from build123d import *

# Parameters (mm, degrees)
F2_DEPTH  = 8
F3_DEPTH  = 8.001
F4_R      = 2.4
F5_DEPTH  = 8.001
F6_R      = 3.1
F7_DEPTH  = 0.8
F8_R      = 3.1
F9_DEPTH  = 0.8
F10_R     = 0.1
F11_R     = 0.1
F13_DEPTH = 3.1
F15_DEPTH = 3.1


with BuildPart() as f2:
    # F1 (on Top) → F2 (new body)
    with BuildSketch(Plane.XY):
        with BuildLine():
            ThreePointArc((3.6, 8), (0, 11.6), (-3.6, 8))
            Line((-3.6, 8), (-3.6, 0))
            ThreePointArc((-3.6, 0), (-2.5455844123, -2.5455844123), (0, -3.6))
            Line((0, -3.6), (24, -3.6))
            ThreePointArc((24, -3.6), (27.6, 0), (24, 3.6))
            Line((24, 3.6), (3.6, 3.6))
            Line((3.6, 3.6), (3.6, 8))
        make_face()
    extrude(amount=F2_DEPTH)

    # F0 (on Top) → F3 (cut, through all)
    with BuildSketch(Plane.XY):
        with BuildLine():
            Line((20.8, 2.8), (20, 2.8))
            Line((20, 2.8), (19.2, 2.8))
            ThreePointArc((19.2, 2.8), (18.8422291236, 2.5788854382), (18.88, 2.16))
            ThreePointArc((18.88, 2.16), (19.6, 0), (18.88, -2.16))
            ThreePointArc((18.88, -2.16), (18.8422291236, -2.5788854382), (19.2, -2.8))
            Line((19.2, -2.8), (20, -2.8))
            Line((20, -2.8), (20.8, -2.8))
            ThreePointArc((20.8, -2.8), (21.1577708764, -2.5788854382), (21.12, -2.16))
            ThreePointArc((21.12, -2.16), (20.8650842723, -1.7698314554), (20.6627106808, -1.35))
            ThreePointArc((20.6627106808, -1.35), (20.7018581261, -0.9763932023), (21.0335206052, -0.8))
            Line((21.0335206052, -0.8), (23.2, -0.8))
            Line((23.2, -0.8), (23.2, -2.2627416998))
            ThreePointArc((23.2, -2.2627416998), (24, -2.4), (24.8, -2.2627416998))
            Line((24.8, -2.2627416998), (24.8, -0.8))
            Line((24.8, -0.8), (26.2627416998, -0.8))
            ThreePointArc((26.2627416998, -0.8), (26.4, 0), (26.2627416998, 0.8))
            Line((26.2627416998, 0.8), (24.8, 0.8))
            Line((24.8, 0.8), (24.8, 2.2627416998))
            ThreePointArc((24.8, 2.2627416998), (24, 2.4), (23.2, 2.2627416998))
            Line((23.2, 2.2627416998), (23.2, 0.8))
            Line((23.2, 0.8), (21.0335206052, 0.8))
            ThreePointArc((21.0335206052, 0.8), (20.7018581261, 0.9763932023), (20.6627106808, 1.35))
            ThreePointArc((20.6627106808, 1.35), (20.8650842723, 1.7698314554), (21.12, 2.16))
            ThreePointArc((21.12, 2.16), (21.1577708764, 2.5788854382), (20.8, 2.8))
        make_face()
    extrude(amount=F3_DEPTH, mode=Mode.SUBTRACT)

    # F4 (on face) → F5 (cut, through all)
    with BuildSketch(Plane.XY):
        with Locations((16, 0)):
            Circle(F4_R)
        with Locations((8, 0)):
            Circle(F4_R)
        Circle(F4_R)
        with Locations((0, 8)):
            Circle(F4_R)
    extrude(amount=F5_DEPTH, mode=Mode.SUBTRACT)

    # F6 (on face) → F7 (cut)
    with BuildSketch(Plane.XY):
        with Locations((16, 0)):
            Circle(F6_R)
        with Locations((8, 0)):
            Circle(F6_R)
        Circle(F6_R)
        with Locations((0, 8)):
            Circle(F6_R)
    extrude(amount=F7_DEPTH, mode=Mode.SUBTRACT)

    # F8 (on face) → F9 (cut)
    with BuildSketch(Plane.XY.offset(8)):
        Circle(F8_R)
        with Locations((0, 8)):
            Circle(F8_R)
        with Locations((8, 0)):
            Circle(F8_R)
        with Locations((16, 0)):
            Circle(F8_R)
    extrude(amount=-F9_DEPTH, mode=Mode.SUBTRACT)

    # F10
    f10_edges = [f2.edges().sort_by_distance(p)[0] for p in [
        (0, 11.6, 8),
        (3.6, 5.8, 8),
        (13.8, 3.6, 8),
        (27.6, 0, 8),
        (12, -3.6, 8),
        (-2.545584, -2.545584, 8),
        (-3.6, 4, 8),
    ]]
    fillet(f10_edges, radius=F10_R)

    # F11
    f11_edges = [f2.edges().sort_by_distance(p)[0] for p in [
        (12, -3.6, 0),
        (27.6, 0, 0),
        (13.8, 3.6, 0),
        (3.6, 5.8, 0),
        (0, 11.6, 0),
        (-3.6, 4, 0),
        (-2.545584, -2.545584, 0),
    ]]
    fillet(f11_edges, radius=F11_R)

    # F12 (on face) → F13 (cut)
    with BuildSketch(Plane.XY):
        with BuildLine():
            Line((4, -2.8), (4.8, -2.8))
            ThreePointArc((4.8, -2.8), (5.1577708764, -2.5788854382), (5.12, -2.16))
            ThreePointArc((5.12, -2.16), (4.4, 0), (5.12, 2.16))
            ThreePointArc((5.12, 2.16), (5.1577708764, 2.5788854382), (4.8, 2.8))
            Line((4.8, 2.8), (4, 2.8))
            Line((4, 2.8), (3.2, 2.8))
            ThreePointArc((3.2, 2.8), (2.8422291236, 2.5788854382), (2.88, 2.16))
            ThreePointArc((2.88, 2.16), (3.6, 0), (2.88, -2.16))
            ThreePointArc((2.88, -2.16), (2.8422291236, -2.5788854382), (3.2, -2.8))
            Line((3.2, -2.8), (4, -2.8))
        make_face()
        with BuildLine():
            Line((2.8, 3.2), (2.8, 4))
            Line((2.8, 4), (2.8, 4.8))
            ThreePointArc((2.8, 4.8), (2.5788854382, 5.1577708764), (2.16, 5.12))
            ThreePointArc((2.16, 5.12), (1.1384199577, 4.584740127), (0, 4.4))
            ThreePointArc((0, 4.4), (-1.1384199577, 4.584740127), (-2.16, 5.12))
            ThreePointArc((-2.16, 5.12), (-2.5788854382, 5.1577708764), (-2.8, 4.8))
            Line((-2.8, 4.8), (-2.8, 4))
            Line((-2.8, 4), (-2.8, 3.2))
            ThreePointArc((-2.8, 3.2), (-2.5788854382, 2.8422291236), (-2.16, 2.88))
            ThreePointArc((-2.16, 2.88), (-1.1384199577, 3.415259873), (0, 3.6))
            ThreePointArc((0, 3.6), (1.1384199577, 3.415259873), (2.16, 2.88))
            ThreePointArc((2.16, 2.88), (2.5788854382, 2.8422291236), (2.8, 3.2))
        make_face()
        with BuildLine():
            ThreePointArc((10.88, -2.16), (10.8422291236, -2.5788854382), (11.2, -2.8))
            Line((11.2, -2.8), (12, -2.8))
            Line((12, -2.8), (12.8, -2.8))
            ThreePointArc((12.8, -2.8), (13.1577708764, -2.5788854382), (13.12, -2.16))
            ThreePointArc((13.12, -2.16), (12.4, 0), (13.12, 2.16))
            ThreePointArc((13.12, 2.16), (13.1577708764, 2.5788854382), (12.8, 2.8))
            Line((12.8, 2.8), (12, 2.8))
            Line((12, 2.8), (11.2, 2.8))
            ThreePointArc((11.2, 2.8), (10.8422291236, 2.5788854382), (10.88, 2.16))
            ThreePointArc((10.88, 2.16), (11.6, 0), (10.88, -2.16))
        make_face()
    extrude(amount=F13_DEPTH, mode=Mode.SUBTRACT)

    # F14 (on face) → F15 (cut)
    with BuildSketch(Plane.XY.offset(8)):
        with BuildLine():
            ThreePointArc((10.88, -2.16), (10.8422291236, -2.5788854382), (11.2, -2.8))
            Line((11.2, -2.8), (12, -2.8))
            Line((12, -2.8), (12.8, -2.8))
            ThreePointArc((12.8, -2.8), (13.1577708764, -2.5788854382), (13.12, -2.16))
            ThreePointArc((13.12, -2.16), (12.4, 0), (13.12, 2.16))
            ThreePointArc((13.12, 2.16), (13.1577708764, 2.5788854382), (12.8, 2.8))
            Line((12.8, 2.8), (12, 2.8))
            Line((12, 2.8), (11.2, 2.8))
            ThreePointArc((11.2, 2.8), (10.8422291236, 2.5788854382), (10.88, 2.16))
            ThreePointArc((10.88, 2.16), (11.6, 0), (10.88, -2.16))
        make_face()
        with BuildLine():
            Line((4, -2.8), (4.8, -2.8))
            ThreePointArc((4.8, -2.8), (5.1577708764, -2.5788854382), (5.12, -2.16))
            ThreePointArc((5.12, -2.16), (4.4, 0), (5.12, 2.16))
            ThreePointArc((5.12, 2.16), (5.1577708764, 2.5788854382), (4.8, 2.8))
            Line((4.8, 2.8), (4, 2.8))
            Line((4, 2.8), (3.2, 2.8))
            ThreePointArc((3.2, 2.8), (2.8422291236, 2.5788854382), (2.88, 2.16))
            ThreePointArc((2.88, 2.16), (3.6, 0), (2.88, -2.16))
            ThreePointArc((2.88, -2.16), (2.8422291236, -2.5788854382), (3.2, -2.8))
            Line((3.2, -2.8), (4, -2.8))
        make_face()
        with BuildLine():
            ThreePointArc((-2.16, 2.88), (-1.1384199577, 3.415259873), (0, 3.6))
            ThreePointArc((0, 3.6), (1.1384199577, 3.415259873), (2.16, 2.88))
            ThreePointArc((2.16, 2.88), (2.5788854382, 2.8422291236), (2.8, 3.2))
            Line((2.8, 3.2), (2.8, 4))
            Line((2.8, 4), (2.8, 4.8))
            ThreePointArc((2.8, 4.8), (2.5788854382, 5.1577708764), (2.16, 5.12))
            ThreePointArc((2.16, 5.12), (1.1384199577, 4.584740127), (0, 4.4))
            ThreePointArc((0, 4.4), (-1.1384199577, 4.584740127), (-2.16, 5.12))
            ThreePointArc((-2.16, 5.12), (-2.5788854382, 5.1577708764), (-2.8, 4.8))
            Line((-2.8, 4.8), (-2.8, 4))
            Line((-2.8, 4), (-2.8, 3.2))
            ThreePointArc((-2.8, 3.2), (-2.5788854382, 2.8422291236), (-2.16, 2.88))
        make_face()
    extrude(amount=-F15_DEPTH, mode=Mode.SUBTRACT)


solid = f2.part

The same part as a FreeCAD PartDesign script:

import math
import FreeCAD as App
import Part
import Sketcher

V = App.Vector


def edges_at(feature, points):
    """Names of the edges that pass closest to the given points."""
    edges = feature.Shape.Edges
    near = lambda p: min(range(len(edges)), key=lambda i: edges[i].distToShape(Part.Vertex(*p))[0])
    return sorted({f"Edge{near(p) + 1}" for p in points})

doc = App.newDocument("Part")
params = doc.addObject("Spreadsheet::Sheet", "Params")
for row, (alias, value) in enumerate([
    ("sketch1_radius", "3.6 mm"),
    ("sketch1_width", "24 mm"),
    ("sketch1_height", "8 mm"),
    ("pad1_length", "8 mm"),
    ("sketch2_radius", "0.4 mm"),
    ("sketch2_radius2", "3.6 mm"),
    ("sketch2_radius3", "2.4 mm"),
    ("sketch2_width", "1.6 mm"),
    ("sketch3_diameter", "4.8 mm"),
    ("sketch4_diameter", "6.2 mm"),
    ("pocket3_length", "0.8 mm"),
    ("sketch5_diameter", "6.2 mm"),
    ("pocket4_length", "0.8 mm"),
    ("fillet_radius", "0.1 mm"),
    ("fillet2_radius", "0.1 mm"),
    ("sketch6_radius", "0.4 mm"),
    ("sketch6_radius2", "3.6 mm"),
    ("sketch6_width", "1.6 mm"),
    ("pocket5_length", "3.1 mm"),
    ("sketch7_radius", "0.4 mm"),
    ("sketch7_radius2", "3.6 mm"),
    ("sketch7_width", "1.6 mm"),
    ("pocket6_length", "3.1 mm"),
], start=1):
    params.set(f"A{row}", alias)
    params.set(f"B{row}", "=" + value)
    params.setAlias(f"B{row}", alias)

body = doc.addObject("PartDesign::Body", "Body")

sketch1 = body.newObject("Sketcher::SketchObject", "Sketch")
sketch1.AttachmentSupport = (doc.getObject("XY_Plane"), [""])
sketch1.MapMode = "FlatFace"
sketch1.addGeometry([
    Part.ArcOfCircle(Part.Circle(V(0, 8, 0), V(0, 0, 1), 3.6), math.radians(0), math.radians(180)),
    Part.LineSegment(V(-3.6, 8, 0), V(-3.6, 0, 0)),
    Part.ArcOfCircle(Part.Circle(V(0, 0, 0), V(0, 0, 1), 3.6), math.radians(180), math.radians(270)),
    Part.LineSegment(V(0, -3.6, 0), V(24, -3.6, 0)),
    Part.ArcOfCircle(Part.Circle(V(24, 0, 0), V(0, 0, 1), 3.6), math.radians(-90), math.radians(90)),
    Part.LineSegment(V(24, 3.6, 0), V(3.6, 3.6, 0)),
    Part.LineSegment(V(3.6, 3.6, 0), V(3.6, 8, 0)),
], False)
sketch1.addConstraint([
    Sketcher.Constraint("Tangent", 0, 2, 1, 1),
    Sketcher.Constraint("Tangent", 1, 2, 2, 1),
    Sketcher.Constraint("Tangent", 2, 2, 3, 1),
    Sketcher.Constraint("Tangent", 3, 2, 4, 1),
    Sketcher.Constraint("Tangent", 4, 2, 5, 1),
    Sketcher.Constraint("Coincident", 5, 2, 6, 1),
    Sketcher.Constraint("Tangent", 6, 2, 0, 1),
    Sketcher.Constraint("Vertical", 1),
    Sketcher.Constraint("Horizontal", 3),
    Sketcher.Constraint("Horizontal", 5),
    Sketcher.Constraint("Vertical", 6),
    Sketcher.Constraint("Coincident", 2, 3, -1, 1),
    Sketcher.Constraint("Equal", 0, 2),
    Sketcher.Constraint("Equal", 2, 4),
    Sketcher.Constraint("Radius", 0, 3.6),
    Sketcher.Constraint("DistanceX", 3, 1, 3, 2, 24.0),
    Sketcher.Constraint("DistanceY", 1, 2, 1, 1, 8.0),
])
sketch1.setExpression("Constraints[14]", "Params.sketch1_radius")
sketch1.setExpression("Constraints[15]", "Params.sketch1_width")
sketch1.setExpression("Constraints[16]", "Params.sketch1_height")
pad1 = body.newObject("PartDesign::Pad", "Pad")
pad1.Profile = sketch1
pad1.setExpression("Length", "Params.pad1_length")

sketch2 = body.newObject("Sketcher::SketchObject", "Sketch001")
sketch2.AttachmentSupport = (doc.getObject("XY_Plane"), [""])
sketch2.MapMode = "FlatFace"
sketch2.addGeometry([
    Part.LineSegment(V(20.8, 2.8, 0), V(19.2, 2.8, 0)),
    Part.ArcOfCircle(Part.Circle(V(19.2, 2.4, 0), V(0, 0, 1), 0.4), math.radians(90), math.radians(217)),
    Part.ArcOfCircle(Part.Circle(V(16, 0, 0), V(0, 0, 1), 3.6), math.radians(-37), math.radians(37)),
    Part.ArcOfCircle(Part.Circle(V(19.2, -2.4, 0), V(0, 0, 1), 0.4), math.radians(143), math.radians(270)),
    Part.LineSegment(V(19.2, -2.8, 0), V(20.8, -2.8, 0)),
    Part.ArcOfCircle(Part.Circle(V(20.8, -2.4, 0), V(0, 0, 1), 0.4), math.radians(-90), math.radians(37)),
    Part.ArcOfCircle(Part.Circle(V(24, 0, 0), V(0, 0, 1), 3.6), math.radians(-157.98), math.radians(-143.13)),
    Part.ArcOfCircle(Part.Circle(V(21.03, -1.2, 0), V(0, 0, 1), 0.4), math.radians(90), math.radians(202)),
    Part.LineSegment(V(21.03, -0.8, 0), V(23.2, -0.8, 0)),
    Part.LineSegment(V(23.2, -0.8, 0), V(23.2, -2.26, 0)),
    Part.ArcOfCircle(Part.Circle(V(24, 0, 0), V(0, 0, 1), 2.4), math.radians(-109), math.radians(-71)),
    Part.LineSegment(V(24.8, -2.26, 0), V(24.8, -0.8, 0)),
    Part.LineSegment(V(24.8, -0.8, 0), V(26.26, -0.8, 0)),
    Part.ArcOfCircle(Part.Circle(V(24, 0, 0), V(0, 0, 1), 2.4), math.radians(-19), math.radians(19)),
    Part.LineSegment(V(26.26, 0.8, 0), V(24.8, 0.8, 0)),
    Part.LineSegment(V(24.8, 0.8, 0), V(24.8, 2.26, 0)),
    Part.ArcOfCircle(Part.Circle(V(24, 0, 0), V(0, 0, 1), 2.4), math.radians(71), math.radians(109)),
    Part.LineSegment(V(23.2, 2.26, 0), V(23.2, 0.8, 0)),
    Part.LineSegment(V(23.2, 0.8, 0), V(21.03, 0.8, 0)),
    Part.ArcOfCircle(Part.Circle(V(21.03, 1.2, 0), V(0, 0, 1), 0.4), math.radians(158), math.radians(270)),
    Part.ArcOfCircle(Part.Circle(V(24, 0, 0), V(0, 0, 1), 3.6), math.radians(143.13), math.radians(157.98)),
    Part.ArcOfCircle(Part.Circle(V(20.8, 2.4, 0), V(0, 0, 1), 0.4), math.radians(-37), math.radians(90)),
], False)
sketch2.addConstraint([
    Sketcher.Constraint("Tangent", 0, 2, 1, 1),
    Sketcher.Constraint("Tangent", 1, 2, 2, 2),
    Sketcher.Constraint("Tangent", 2, 1, 3, 1),
    Sketcher.Constraint("Tangent", 3, 2, 4, 1),
    Sketcher.Constraint("Tangent", 4, 2, 5, 1),
    Sketcher.Constraint("Tangent", 5, 2, 6, 2),
    Sketcher.Constraint("Tangent", 6, 1, 7, 2),
    Sketcher.Constraint("Tangent", 7, 1, 8, 1),
    Sketcher.Constraint("Coincident", 8, 2, 9, 1),
    Sketcher.Constraint("Coincident", 9, 2, 10, 1),
    Sketcher.Constraint("Coincident", 10, 2, 11, 1),
    Sketcher.Constraint("Coincident", 11, 2, 12, 1),
    Sketcher.Constraint("Coincident", 12, 2, 13, 1),
    Sketcher.Constraint("Coincident", 13, 2, 14, 1),
    Sketcher.Constraint("Coincident", 14, 2, 15, 1),
    Sketcher.Constraint("Coincident", 15, 2, 16, 1),
    Sketcher.Constraint("Coincident", 16, 2, 17, 1),
    Sketcher.Constraint("Coincident", 17, 2, 18, 1),
    Sketcher.Constraint("Tangent", 18, 2, 19, 2),
    Sketcher.Constraint("Tangent", 19, 1, 20, 2),
    Sketcher.Constraint("Tangent", 20, 1, 21, 1),
    Sketcher.Constraint("Tangent", 21, 2, 0, 1),
    Sketcher.Constraint("Horizontal", 0),
    Sketcher.Constraint("Horizontal", 4),
    Sketcher.Constraint("Horizontal", 8),
    Sketcher.Constraint("Vertical", 9),
    Sketcher.Constraint("Vertical", 11),
    Sketcher.Constraint("Horizontal", 12),
    Sketcher.Constraint("Horizontal", 14),
    Sketcher.Constraint("Vertical", 15),
    Sketcher.Constraint("Vertical", 17),
    Sketcher.Constraint("Horizontal", 18),
    Sketcher.Constraint("Coincident", 10, 3, 6, 3),
    Sketcher.Constraint("Coincident", 13, 3, 6, 3),
    Sketcher.Constraint("Coincident", 16, 3, 6, 3),
    Sketcher.Constraint("Coincident", 20, 3, 6, 3),
    Sketcher.Constraint("Equal", 1, 3),
    Sketcher.Constraint("Equal", 3, 5),
    Sketcher.Constraint("Equal", 2, 6),
    Sketcher.Constraint("Equal", 5, 7),
    Sketcher.Constraint("Equal", 10, 13),
    Sketcher.Constraint("Equal", 13, 16),
    Sketcher.Constraint("Equal", 7, 19),
    Sketcher.Constraint("Equal", 6, 20),
    Sketcher.Constraint("Equal", 19, 21),
    Sketcher.Constraint("Symmetric", 1, 3, 3, 3, -1),
    Sketcher.Constraint("Symmetric", 7, 3, 19, 3, -1),
    Sketcher.Constraint("Symmetric", 11, 2, 14, 2, -1),
    Sketcher.Constraint("Horizontal", 9, 2, 10, 2),
    Sketcher.Constraint("Horizontal", 8, 2, 11, 2),
    Sketcher.Constraint("Horizontal", 15, 2, 16, 2),
    Sketcher.Constraint("Equal", 14, 9),
    Sketcher.Constraint("Radius", 1, 0.4),
    Sketcher.Constraint("Radius", 2, 3.6),
    Sketcher.Constraint("Radius", 10, 2.4),
    Sketcher.Constraint("DistanceX", 0, 2, 0, 1, 1.6),
    Sketcher.Constraint("DistanceX", -1, 1, 2, 3, 16.0),
    Sketcher.Constraint("DistanceX", -1, 1, 6, 3, 24.0),
    Sketcher.Constraint("DistanceY", 7, 3, 0, 2, 4.0),
])
sketch2.setExpression("Constraints[52]", "Params.sketch2_radius")
sketch2.setExpression("Constraints[53]", "Params.sketch2_radius2")
sketch2.setExpression("Constraints[54]", "Params.sketch2_radius3")
sketch2.setExpression("Constraints[55]", "Params.sketch2_width")
pocket1 = body.newObject("PartDesign::Pocket", "Pocket")
pocket1.Profile = sketch2
pocket1.Type = "ThroughAll"
pocket1.Reversed = True

sketch3 = body.newObject("Sketcher::SketchObject", "Sketch002")
sketch3.AttachmentSupport = (doc.getObject("XY_Plane"), [""])
sketch3.MapMode = "FlatFace"
sketch3.addGeometry([
    Part.Circle(V(16, 0, 0), V(0, 0, 1), 2.4),
    Part.Circle(V(8, 0, 0), V(0, 0, 1), 2.4),
    Part.Circle(V(0, 0, 0), V(0, 0, 1), 2.4),
    Part.Circle(V(0, 8, 0), V(0, 0, 1), 2.4),
], False)
sketch3.addConstraint([
    Sketcher.Constraint("Coincident", 2, 3, -1, 1),
    Sketcher.Constraint("Equal", 0, 1),
    Sketcher.Constraint("Equal", 1, 2),
    Sketcher.Constraint("Equal", 2, 3),
    Sketcher.Constraint("PointOnObject", 0, 3, -1),
    Sketcher.Constraint("PointOnObject", 1, 3, -1),
    Sketcher.Constraint("PointOnObject", 3, 3, -2),
    Sketcher.Constraint("Diameter", 0, 4.8),
    Sketcher.Constraint("DistanceX", -1, 1, 0, 3, 16.0),
    Sketcher.Constraint("DistanceX", -1, 1, 1, 3, 8.0),
    Sketcher.Constraint("DistanceY", -1, 1, 3, 3, 8.0),
])
sketch3.setExpression("Constraints[7]", "Params.sketch3_diameter")
pocket2 = body.newObject("PartDesign::Pocket", "Pocket001")
pocket2.Profile = sketch3
pocket2.Type = "ThroughAll"
pocket2.Reversed = True

sketch4 = body.newObject("Sketcher::SketchObject", "Sketch003")
sketch4.AttachmentSupport = (doc.getObject("XY_Plane"), [""])
sketch4.MapMode = "FlatFace"
sketch4.addGeometry([
    Part.Circle(V(16, 0, 0), V(0, 0, 1), 3.1),
    Part.Circle(V(8, 0, 0), V(0, 0, 1), 3.1),
    Part.Circle(V(0, 0, 0), V(0, 0, 1), 3.1),
    Part.Circle(V(0, 8, 0), V(0, 0, 1), 3.1),
], False)
sketch4.addConstraint([
    Sketcher.Constraint("Coincident", 2, 3, -1, 1),
    Sketcher.Constraint("Equal", 0, 1),
    Sketcher.Constraint("Equal", 1, 2),
    Sketcher.Constraint("Equal", 2, 3),
    Sketcher.Constraint("PointOnObject", 0, 3, -1),
    Sketcher.Constraint("PointOnObject", 1, 3, -1),
    Sketcher.Constraint("PointOnObject", 3, 3, -2),
    Sketcher.Constraint("Diameter", 0, 6.2),
    Sketcher.Constraint("DistanceX", -1, 1, 0, 3, 16.0),
    Sketcher.Constraint("DistanceX", -1, 1, 1, 3, 8.0),
    Sketcher.Constraint("DistanceY", -1, 1, 3, 3, 8.0),
])
sketch4.setExpression("Constraints[7]", "Params.sketch4_diameter")
pocket3 = body.newObject("PartDesign::Pocket", "Pocket002")
pocket3.Profile = sketch4
pocket3.setExpression("Length", "Params.pocket3_length")
pocket3.Reversed = True

sketch5 = body.newObject("Sketcher::SketchObject", "Sketch004")
sketch5.AttachmentSupport = (doc.getObject("XY_Plane"), [""])
sketch5.MapMode = "FlatFace"
sketch5.AttachmentOffset = App.Placement(V(0, 0, 8), App.Rotation())
sketch5.addGeometry([
    Part.Circle(V(0, 0, 0), V(0, 0, 1), 3.1),
    Part.Circle(V(0, 8, 0), V(0, 0, 1), 3.1),
    Part.Circle(V(8, 0, 0), V(0, 0, 1), 3.1),
    Part.Circle(V(16, 0, 0), V(0, 0, 1), 3.1),
], False)
sketch5.addConstraint([
    Sketcher.Constraint("Coincident", 0, 3, -1, 1),
    Sketcher.Constraint("Equal", 0, 1),
    Sketcher.Constraint("Equal", 1, 2),
    Sketcher.Constraint("Equal", 2, 3),
    Sketcher.Constraint("PointOnObject", 1, 3, -2),
    Sketcher.Constraint("PointOnObject", 2, 3, -1),
    Sketcher.Constraint("PointOnObject", 3, 3, -1),
    Sketcher.Constraint("Diameter", 0, 6.2),
    Sketcher.Constraint("DistanceY", -1, 1, 1, 3, 8.0),
    Sketcher.Constraint("DistanceX", -1, 1, 2, 3, 8.0),
    Sketcher.Constraint("DistanceX", -1, 1, 3, 3, 16.0),
])
sketch5.setExpression("Constraints[7]", "Params.sketch5_diameter")
pocket4 = body.newObject("PartDesign::Pocket", "Pocket003")
pocket4.Profile = sketch5
pocket4.setExpression("Length", "Params.pocket4_length")
doc.recompute()

fillet = body.newObject("PartDesign::Fillet", "Fillet")
fillet.Base = (pocket4, edges_at(pocket4, [
    (0, 11.6, 8),
    (3.6, 5.8, 8),
    (13.8, 3.6, 8),
    (27.6, 0, 8),
    (12, -3.6, 8),
    (-2.546, -2.546, 8),
    (-3.6, 4, 8),
]))
fillet.setExpression("Radius", "Params.fillet_radius")
doc.recompute()

fillet2 = body.newObject("PartDesign::Fillet", "Fillet001")
fillet2.Base = (fillet, edges_at(fillet, [
    (12, -3.6, 0),
    (27.6, 0, 0),
    (13.8, 3.6, 0),
    (3.6, 5.8, 0),
    (0, 11.6, 0),
    (-3.6, 4, 0),
    (-2.546, -2.546, 0),
]))
fillet2.setExpression("Radius", "Params.fillet2_radius")

sketch6 = body.newObject("Sketcher::SketchObject", "Sketch005")
sketch6.AttachmentSupport = (doc.getObject("XY_Plane"), [""])
sketch6.MapMode = "FlatFace"
sketch6.addGeometry([
    Part.ArcOfCircle(Part.Circle(V(4.8, -2.4, 0), V(0, 0, 1), 0.4), math.radians(-90), math.radians(37)),
    Part.ArcOfCircle(Part.Circle(V(8, 0, 0), V(0, 0, 1), 3.6), math.radians(143), math.radians(217)),
    Part.ArcOfCircle(Part.Circle(V(4.8, 2.4, 0), V(0, 0, 1), 0.4), math.radians(-37), math.radians(90)),
    Part.LineSegment(V(4.8, 2.8, 0), V(3.2, 2.8, 0)),
    Part.ArcOfCircle(Part.Circle(V(3.2, 2.4, 0), V(0, 0, 1), 0.4), math.radians(90), math.radians(217)),
    Part.ArcOfCircle(Part.Circle(V(0, 0, 0), V(0, 0, 1), 3.6), math.radians(-37), math.radians(37)),
    Part.ArcOfCircle(Part.Circle(V(3.2, -2.4, 0), V(0, 0, 1), 0.4), math.radians(143), math.radians(270)),
    Part.LineSegment(V(3.2, -2.8, 0), V(4.8, -2.8, 0)),
    Part.LineSegment(V(2.8, 3.2, 0), V(2.8, 4.8, 0)),
    Part.ArcOfCircle(Part.Circle(V(2.4, 4.8, 0), V(0, 0, 1), 0.4), math.radians(0), math.radians(127)),
    Part.ArcOfCircle(Part.Circle(V(0, 8, 0), V(0, 0, 1), 3.6), math.radians(-90), math.radians(-53)),
    Part.ArcOfCircle(Part.Circle(V(0, 8, 0), V(0, 0, 1), 3.6), math.radians(-127), math.radians(-90)),
    Part.ArcOfCircle(Part.Circle(V(-2.4, 4.8, 0), V(0, 0, 1), 0.4), math.radians(53), math.radians(180)),
    Part.LineSegment(V(-2.8, 4.8, 0), V(-2.8, 3.2, 0)),
    Part.ArcOfCircle(Part.Circle(V(-2.4, 3.2, 0), V(0, 0, 1), 0.4), math.radians(180), math.radians(307)),
    Part.ArcOfCircle(Part.Circle(V(0, 0, 0), V(0, 0, 1), 3.6), math.radians(90), math.radians(127)),
    Part.ArcOfCircle(Part.Circle(V(0, 0, 0), V(0, 0, 1), 3.6), math.radians(53), math.radians(90)),
    Part.ArcOfCircle(Part.Circle(V(2.4, 3.2, 0), V(0, 0, 1), 0.4), math.radians(-127), math.radians(0)),
    Part.ArcOfCircle(Part.Circle(V(11.2, -2.4, 0), V(0, 0, 1), 0.4), math.radians(143), math.radians(270)),
    Part.LineSegment(V(11.2, -2.8, 0), V(12.8, -2.8, 0)),
    Part.ArcOfCircle(Part.Circle(V(12.8, -2.4, 0), V(0, 0, 1), 0.4), math.radians(-90), math.radians(37)),
    Part.ArcOfCircle(Part.Circle(V(16, 0, 0), V(0, 0, 1), 3.6), math.radians(143), math.radians(217)),
    Part.ArcOfCircle(Part.Circle(V(12.8, 2.4, 0), V(0, 0, 1), 0.4), math.radians(-37), math.radians(90)),
    Part.LineSegment(V(12.8, 2.8, 0), V(11.2, 2.8, 0)),
    Part.ArcOfCircle(Part.Circle(V(11.2, 2.4, 0), V(0, 0, 1), 0.4), math.radians(90), math.radians(217)),
    Part.ArcOfCircle(Part.Circle(V(8, 0, 0), V(0, 0, 1), 3.6), math.radians(-37), math.radians(37)),
], False)
sketch6.addConstraint([
    Sketcher.Constraint("Tangent", 0, 2, 1, 2),
    Sketcher.Constraint("Tangent", 1, 1, 2, 1),
    Sketcher.Constraint("Tangent", 2, 2, 3, 1),
    Sketcher.Constraint("Tangent", 3, 2, 4, 1),
    Sketcher.Constraint("Tangent", 4, 2, 5, 2),
    Sketcher.Constraint("Tangent", 5, 1, 6, 1),
    Sketcher.Constraint("Tangent", 6, 2, 7, 1),
    Sketcher.Constraint("Tangent", 7, 2, 0, 1),
    Sketcher.Constraint("Tangent", 8, 2, 9, 1),
    Sketcher.Constraint("Tangent", 9, 2, 10, 2),
    Sketcher.Constraint("Tangent", 10, 1, 11, 2),
    Sketcher.Constraint("Tangent", 11, 1, 12, 1),
    Sketcher.Constraint("Tangent", 12, 2, 13, 1),
    Sketcher.Constraint("Tangent", 13, 2, 14, 1),
    Sketcher.Constraint("Tangent", 14, 2, 15, 2),
    Sketcher.Constraint("Tangent", 15, 1, 16, 2),
    Sketcher.Constraint("Tangent", 16, 1, 17, 1),
    Sketcher.Constraint("Tangent", 17, 2, 8, 1),
    Sketcher.Constraint("Tangent", 18, 2, 19, 1),
    Sketcher.Constraint("Tangent", 19, 2, 20, 1),
    Sketcher.Constraint("Tangent", 20, 2, 21, 2),
    Sketcher.Constraint("Tangent", 21, 1, 22, 1),
    Sketcher.Constraint("Tangent", 22, 2, 23, 1),
    Sketcher.Constraint("Tangent", 23, 2, 24, 1),
    Sketcher.Constraint("Tangent", 24, 2, 25, 2),
    Sketcher.Constraint("Tangent", 25, 1, 18, 1),
    Sketcher.Constraint("Horizontal", 3),
    Sketcher.Constraint("Horizontal", 7),
    Sketcher.Constraint("Vertical", 8),
    Sketcher.Constraint("Vertical", 13),
    Sketcher.Constraint("Horizontal", 19),
    Sketcher.Constraint("Horizontal", 23),
    Sketcher.Constraint("Coincident", 5, 3, -1, 1),
    Sketcher.Constraint("Coincident", 15, 3, -1, 1),
    Sketcher.Constraint("Coincident", 25, 3, 1, 3),
    Sketcher.Constraint("Equal", 0, 2),
    Sketcher.Constraint("Equal", 2, 4),
    Sketcher.Constraint("Equal", 1, 5),
    Sketcher.Constraint("Equal", 4, 6),
    Sketcher.Constraint("Equal", 6, 9),
    Sketcher.Constraint("Equal", 5, 10),
    Sketcher.Constraint("Equal", 10, 11),
    Sketcher.Constraint("Equal", 9, 12),
    Sketcher.Constraint("Equal", 12, 14),
    Sketcher.Constraint("Equal", 11, 15),
    Sketcher.Constraint("Equal", 15, 16),
    Sketcher.Constraint("Equal", 14, 17),
    Sketcher.Constraint("Equal", 17, 18),
    Sketcher.Constraint("Equal", 18, 20),
    Sketcher.Constraint("Equal", 16, 21),
    Sketcher.Constraint("Equal", 20, 22),
    Sketcher.Constraint("Equal", 22, 24),
    Sketcher.Constraint("Equal", 21, 25),
    Sketcher.Constraint("Symmetric", 9, 3, 12, 3, -2),
    Sketcher.Constraint("Symmetric", 0, 3, 2, 3, -1),
    Sketcher.Constraint("Symmetric", 20, 3, 22, 3, -1),
    Sketcher.Constraint("PointOnObject", 10, 1, -2),
    Sketcher.Constraint("PointOnObject", 15, 1, -2),
    Sketcher.Constraint("Horizontal", 6, 3, 18, 3),
    Sketcher.Constraint("Equal", 7, 19),
    Sketcher.Constraint("Equal", 23, 8),
    Sketcher.Constraint("Radius", 0, 0.4),
    Sketcher.Constraint("Radius", 1, 3.6),
    Sketcher.Constraint("DistanceX", 3, 2, 3, 1, 1.6),
    Sketcher.Constraint("DistanceX", -1, 1, 1, 3, 8.0),
    Sketcher.Constraint("DistanceY", -1, 1, 10, 3, 8.0),
])
sketch6.setExpression("Constraints[61]", "Params.sketch6_radius")
sketch6.setExpression("Constraints[62]", "Params.sketch6_radius2")
sketch6.setExpression("Constraints[63]", "Params.sketch6_width")
pocket5 = body.newObject("PartDesign::Pocket", "Pocket004")
pocket5.Profile = sketch6
pocket5.setExpression("Length", "Params.pocket5_length")
pocket5.Reversed = True

sketch7 = body.newObject("Sketcher::SketchObject", "Sketch006")
sketch7.AttachmentSupport = (doc.getObject("XY_Plane"), [""])
sketch7.MapMode = "FlatFace"
sketch7.AttachmentOffset = App.Placement(V(0, 0, 8), App.Rotation())
sketch7.addGeometry([
    Part.ArcOfCircle(Part.Circle(V(11.2, -2.4, 0), V(0, 0, 1), 0.4), math.radians(143), math.radians(270)),
    Part.LineSegment(V(11.2, -2.8, 0), V(12.8, -2.8, 0)),
    Part.ArcOfCircle(Part.Circle(V(12.8, -2.4, 0), V(0, 0, 1), 0.4), math.radians(-90), math.radians(37)),
    Part.ArcOfCircle(Part.Circle(V(16, 0, 0), V(0, 0, 1), 3.6), math.radians(143), math.radians(217)),
    Part.ArcOfCircle(Part.Circle(V(12.8, 2.4, 0), V(0, 0, 1), 0.4), math.radians(-37), math.radians(90)),
    Part.LineSegment(V(12.8, 2.8, 0), V(11.2, 2.8, 0)),
    Part.ArcOfCircle(Part.Circle(V(11.2, 2.4, 0), V(0, 0, 1), 0.4), math.radians(90), math.radians(217)),
    Part.ArcOfCircle(Part.Circle(V(8, 0, 0), V(0, 0, 1), 3.6), math.radians(-37), math.radians(37)),
    Part.ArcOfCircle(Part.Circle(V(4.8, -2.4, 0), V(0, 0, 1), 0.4), math.radians(-90), math.radians(37)),
    Part.ArcOfCircle(Part.Circle(V(8, 0, 0), V(0, 0, 1), 3.6), math.radians(143), math.radians(217)),
    Part.ArcOfCircle(Part.Circle(V(4.8, 2.4, 0), V(0, 0, 1), 0.4), math.radians(-37), math.radians(90)),
    Part.LineSegment(V(4.8, 2.8, 0), V(3.2, 2.8, 0)),
    Part.ArcOfCircle(Part.Circle(V(3.2, 2.4, 0), V(0, 0, 1), 0.4), math.radians(90), math.radians(217)),
    Part.ArcOfCircle(Part.Circle(V(0, 0, 0), V(0, 0, 1), 3.6), math.radians(-37), math.radians(37)),
    Part.ArcOfCircle(Part.Circle(V(3.2, -2.4, 0), V(0, 0, 1), 0.4), math.radians(143), math.radians(270)),
    Part.LineSegment(V(3.2, -2.8, 0), V(4.8, -2.8, 0)),
    Part.ArcOfCircle(Part.Circle(V(0, 0, 0), V(0, 0, 1), 3.6), math.radians(90), math.radians(127)),
    Part.ArcOfCircle(Part.Circle(V(0, 0, 0), V(0, 0, 1), 3.6), math.radians(53), math.radians(90)),
    Part.ArcOfCircle(Part.Circle(V(2.4, 3.2, 0), V(0, 0, 1), 0.4), math.radians(-127), math.radians(0)),
    Part.LineSegment(V(2.8, 3.2, 0), V(2.8, 4.8, 0)),
    Part.ArcOfCircle(Part.Circle(V(2.4, 4.8, 0), V(0, 0, 1), 0.4), math.radians(0), math.radians(127)),
    Part.ArcOfCircle(Part.Circle(V(0, 8, 0), V(0, 0, 1), 3.6), math.radians(-90), math.radians(-53)),
    Part.ArcOfCircle(Part.Circle(V(0, 8, 0), V(0, 0, 1), 3.6), math.radians(-127), math.radians(-90)),
    Part.ArcOfCircle(Part.Circle(V(-2.4, 4.8, 0), V(0, 0, 1), 0.4), math.radians(53), math.radians(180)),
    Part.LineSegment(V(-2.8, 4.8, 0), V(-2.8, 3.2, 0)),
    Part.ArcOfCircle(Part.Circle(V(-2.4, 3.2, 0), V(0, 0, 1), 0.4), math.radians(180), math.radians(307)),
], False)
sketch7.addConstraint([
    Sketcher.Constraint("Tangent", 0, 2, 1, 1),
    Sketcher.Constraint("Tangent", 1, 2, 2, 1),
    Sketcher.Constraint("Tangent", 2, 2, 3, 2),
    Sketcher.Constraint("Tangent", 3, 1, 4, 1),
    Sketcher.Constraint("Tangent", 4, 2, 5, 1),
    Sketcher.Constraint("Tangent", 5, 2, 6, 1),
    Sketcher.Constraint("Tangent", 6, 2, 7, 2),
    Sketcher.Constraint("Tangent", 7, 1, 0, 1),
    Sketcher.Constraint("Tangent", 8, 2, 9, 2),
    Sketcher.Constraint("Tangent", 9, 1, 10, 1),
    Sketcher.Constraint("Tangent", 10, 2, 11, 1),
    Sketcher.Constraint("Tangent", 11, 2, 12, 1),
    Sketcher.Constraint("Tangent", 12, 2, 13, 2),
    Sketcher.Constraint("Tangent", 13, 1, 14, 1),
    Sketcher.Constraint("Tangent", 14, 2, 15, 1),
    Sketcher.Constraint("Tangent", 15, 2, 8, 1),
    Sketcher.Constraint("Tangent", 16, 1, 17, 2),
    Sketcher.Constraint("Tangent", 17, 1, 18, 1),
    Sketcher.Constraint("Tangent", 18, 2, 19, 1),
    Sketcher.Constraint("Tangent", 19, 2, 20, 1),
    Sketcher.Constraint("Tangent", 20, 2, 21, 2),
    Sketcher.Constraint("Tangent", 21, 1, 22, 2),
    Sketcher.Constraint("Tangent", 22, 1, 23, 1),
    Sketcher.Constraint("Tangent", 23, 2, 24, 1),
    Sketcher.Constraint("Tangent", 24, 2, 25, 1),
    Sketcher.Constraint("Tangent", 25, 2, 16, 2),
    Sketcher.Constraint("Horizontal", 1),
    Sketcher.Constraint("Horizontal", 5),
    Sketcher.Constraint("Horizontal", 11),
    Sketcher.Constraint("Horizontal", 15),
    Sketcher.Constraint("Vertical", 19),
    Sketcher.Constraint("Vertical", 24),
    Sketcher.Constraint("Coincident", 13, 3, -1, 1),
    Sketcher.Constraint("Coincident", 16, 3, -1, 1),
    Sketcher.Constraint("Coincident", 9, 3, 7, 3),
    Sketcher.Constraint("Equal", 0, 2),
    Sketcher.Constraint("Equal", 2, 4),
    Sketcher.Constraint("Equal", 4, 6),
    Sketcher.Constraint("Equal", 3, 7),
    Sketcher.Constraint("Equal", 6, 8),
    Sketcher.Constraint("Equal", 7, 9),
    Sketcher.Constraint("Equal", 8, 10),
    Sketcher.Constraint("Equal", 10, 12),
    Sketcher.Constraint("Equal", 9, 13),
    Sketcher.Constraint("Equal", 12, 14),
    Sketcher.Constraint("Equal", 13, 16),
    Sketcher.Constraint("Equal", 16, 17),
    Sketcher.Constraint("Equal", 14, 18),
    Sketcher.Constraint("Equal", 18, 20),
    Sketcher.Constraint("Equal", 17, 21),
    Sketcher.Constraint("Equal", 21, 22),
    Sketcher.Constraint("Equal", 20, 23),
    Sketcher.Constraint("Equal", 23, 25),
    Sketcher.Constraint("Symmetric", 20, 3, 23, 3, -2),
    Sketcher.Constraint("Symmetric", 2, 3, 4, 3, -1),
    Sketcher.Constraint("Symmetric", 8, 3, 10, 3, -1),
    Sketcher.Constraint("PointOnObject", 16, 1, -2),
    Sketcher.Constraint("PointOnObject", 21, 1, -2),
    Sketcher.Constraint("Horizontal", 2, 3, 8, 3),
    Sketcher.Constraint("Equal", 5, 11),
    Sketcher.Constraint("Equal", 15, 19),
    Sketcher.Constraint("Radius", 0, 0.4),
    Sketcher.Constraint("Radius", 3, 3.6),
    Sketcher.Constraint("DistanceX", 1, 1, 1, 2, 1.6),
    Sketcher.Constraint("DistanceX", -1, 1, 3, 3, 16.0),
    Sketcher.Constraint("DistanceY", -1, 1, 21, 3, 8.0),
])
sketch7.setExpression("Constraints[61]", "Params.sketch7_radius")
sketch7.setExpression("Constraints[62]", "Params.sketch7_radius2")
sketch7.setExpression("Constraints[63]", "Params.sketch7_width")
pocket6 = body.newObject("PartDesign::Pocket", "Pocket005")
pocket6.Profile = sketch7
pocket6.setExpression("Length", "Params.pocket6_length")

doc.recompute()
